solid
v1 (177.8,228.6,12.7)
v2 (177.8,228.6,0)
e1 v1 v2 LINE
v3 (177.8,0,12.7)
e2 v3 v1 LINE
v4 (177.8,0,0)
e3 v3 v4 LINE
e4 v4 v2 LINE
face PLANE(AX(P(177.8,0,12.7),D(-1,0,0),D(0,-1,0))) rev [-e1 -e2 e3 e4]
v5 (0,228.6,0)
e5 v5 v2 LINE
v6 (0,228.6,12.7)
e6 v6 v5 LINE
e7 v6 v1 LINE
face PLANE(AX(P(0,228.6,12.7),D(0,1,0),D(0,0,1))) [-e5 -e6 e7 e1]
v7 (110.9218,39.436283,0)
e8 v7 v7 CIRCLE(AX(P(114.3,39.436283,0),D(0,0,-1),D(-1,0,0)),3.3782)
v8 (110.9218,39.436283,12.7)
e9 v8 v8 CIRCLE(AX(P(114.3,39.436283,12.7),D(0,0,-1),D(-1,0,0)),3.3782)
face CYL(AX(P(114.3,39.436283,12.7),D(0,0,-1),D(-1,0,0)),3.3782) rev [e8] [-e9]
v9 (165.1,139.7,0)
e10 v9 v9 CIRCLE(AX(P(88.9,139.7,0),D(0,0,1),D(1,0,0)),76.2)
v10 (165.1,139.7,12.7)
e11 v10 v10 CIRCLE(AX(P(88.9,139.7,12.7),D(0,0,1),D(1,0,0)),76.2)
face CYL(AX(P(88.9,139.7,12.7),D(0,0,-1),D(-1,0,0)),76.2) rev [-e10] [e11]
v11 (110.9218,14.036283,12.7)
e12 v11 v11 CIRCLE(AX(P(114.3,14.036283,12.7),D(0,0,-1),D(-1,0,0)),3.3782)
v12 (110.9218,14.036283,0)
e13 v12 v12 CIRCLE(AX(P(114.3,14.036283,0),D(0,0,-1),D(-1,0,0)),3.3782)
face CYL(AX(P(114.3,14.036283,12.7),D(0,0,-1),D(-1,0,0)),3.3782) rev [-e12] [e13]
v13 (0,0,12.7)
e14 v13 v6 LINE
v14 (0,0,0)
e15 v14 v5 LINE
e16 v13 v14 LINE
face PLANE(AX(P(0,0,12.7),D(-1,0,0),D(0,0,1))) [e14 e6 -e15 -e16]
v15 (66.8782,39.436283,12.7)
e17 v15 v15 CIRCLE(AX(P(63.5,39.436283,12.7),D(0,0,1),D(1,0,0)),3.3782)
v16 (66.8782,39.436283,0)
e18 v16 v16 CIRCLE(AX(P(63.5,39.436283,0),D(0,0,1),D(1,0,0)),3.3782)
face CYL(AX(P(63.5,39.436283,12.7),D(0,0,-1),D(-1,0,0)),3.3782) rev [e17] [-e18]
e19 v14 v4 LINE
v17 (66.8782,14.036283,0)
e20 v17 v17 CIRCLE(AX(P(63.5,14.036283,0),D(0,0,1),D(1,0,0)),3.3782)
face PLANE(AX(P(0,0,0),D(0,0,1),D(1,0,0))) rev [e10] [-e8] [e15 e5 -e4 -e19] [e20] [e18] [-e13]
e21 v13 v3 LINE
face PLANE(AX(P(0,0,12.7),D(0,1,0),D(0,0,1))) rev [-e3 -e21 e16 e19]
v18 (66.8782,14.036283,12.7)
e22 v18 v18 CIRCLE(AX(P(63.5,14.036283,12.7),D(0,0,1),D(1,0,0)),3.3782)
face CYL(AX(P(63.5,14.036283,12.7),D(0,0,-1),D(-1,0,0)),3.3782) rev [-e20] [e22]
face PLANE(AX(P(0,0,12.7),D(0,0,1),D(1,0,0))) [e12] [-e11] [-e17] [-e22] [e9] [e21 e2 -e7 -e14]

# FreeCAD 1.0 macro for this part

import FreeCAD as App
import Part
import Sketcher
from FreeCAD import Vector
Q = App.Units.Quantity


def add_polygon(sketch, points):
    """Adds a closed chain of lines whose ends are joined by coincident constraints."""
    first, n = sketch.GeometryCount, len(points)
    for a, b in zip(points, points[1:] + points[:1]):
        sketch.addGeometry(Part.LineSegment(App.Vector(*a, 0), App.Vector(*b, 0)), False)
    for i in range(n):
        sketch.addConstraint(Sketcher.Constraint("Coincident", first + i, 2, first + (i + 1) % n, 1))

doc = App.newDocument("Part")
params = doc.addObject("Spreadsheet::Sheet", "Params")
for row, (alias, value) in enumerate([
    ("sketch1_diameter", "6 in"),
    ("sketch1_width", "7 in"),
    ("sketch1_height", "9 in"),
    ("sketch1_diameter2", "0.266 in"),
    ("pad1_length", "0.5 in"),
], start=1):
    params.set(f"A{row}", alias)
    params.set(f"B{row}", "=" + value)
    params.setAlias(f"B{row}", alias)

body = doc.addObject("PartDesign::Body", "Body")

# Sketch on XY plane
sketch1 = body.newObject("Sketcher::SketchObject", "Sketch")
sketch1.AttachmentSupport = (doc.getObject("XY_Plane"), [""])
sketch1.MapMode = "FlatFace"
add_polygon(sketch1, [(0, 228.6), (0, 0), (177.8, 0), (177.8, 228.6)])  # lines 0-3
sketch1.addGeometry(Part.Circle(Vector(63.5, 14, 0), Vector(0, 0, 1), 3.4), False)  # 4
sketch1.addGeometry(Part.Circle(Vector(63.5, 39.4, 0), Vector(0, 0, 1), 3.4), False)  # 5
sketch1.addGeometry(Part.Circle(Vector(114.3, 14, 0), Vector(0, 0, 1), 3.4), False)  # 6
sketch1.addGeometry(Part.Circle(Vector(114.3, 39.4, 0), Vector(0, 0, 1), 3.4), False)  # 7
sketch1.addGeometry(Part.Circle(Vector(88.9, 139.7, 0), Vector(0, 0, 1), 76.2), False)  # 8
sketch1.addConstraint([
    Sketcher.Constraint("Vertical", 0),
    Sketcher.Constraint("Horizontal", 1),
    Sketcher.Constraint("Vertical", 2),
    Sketcher.Constraint("Horizontal", 3),
    Sketcher.Constraint("Coincident", 0, 2, -1, 1),
    Sketcher.Constraint("Equal", 4, 5),
    Sketcher.Constraint("Equal", 5, 6),
    Sketcher.Constraint("Equal", 6, 7),
    Sketcher.Constraint("Horizontal", 4, 3, 6, 3),
    Sketcher.Constraint("Horizontal", 5, 3, 7, 3),
    Sketcher.Constraint("Vertical", 4, 3, 5, 3),
    Sketcher.Constraint("Vertical", 6, 3, 7, 3),
    Sketcher.Constraint("Diameter", 8, Q("6 in")),
    Sketcher.Constraint("DistanceX", 1, 1, 1, 2, Q("7 in")),
    Sketcher.Constraint("DistanceY", 0, 2, 0, 1, Q("9 in")),
    Sketcher.Constraint("Diameter", 4, Q("0.266 in")),
    Sketcher.Constraint("DistanceY", 4, 3, 5, 3, Q("1 in")),
    Sketcher.Constraint("DistanceX", 4, 3, 6, 3, Q("2 in")),
    Sketcher.Constraint("DistanceX", 5, 3, 8, 3, Q("1 in")),
    Sketcher.Constraint("DistanceX", -1, 1, 4, 3, Q("2.5 in")),
    Sketcher.Constraint("DistanceY", -1, 1, 8, 3, Q("5.5 in")),
    Sketcher.Constraint("DistanceY", -1, 1, 4, 3, Q("14.036283 mm")),
])
sketch1.setExpression("Constraints[16]", "Params.sketch1_diameter")
sketch1.setExpression("Constraints[17]", "Params.sketch1_width")
sketch1.setExpression("Constraints[18]", "Params.sketch1_height")
sketch1.setExpression("Constraints[19]", "Params.sketch1_diameter2")
pad1 = body.newObject("PartDesign::Pad", "Pad")
pad1.Profile = sketch1
pad1.setExpression("Length", "Params.pad1_length")

doc.recompute()
